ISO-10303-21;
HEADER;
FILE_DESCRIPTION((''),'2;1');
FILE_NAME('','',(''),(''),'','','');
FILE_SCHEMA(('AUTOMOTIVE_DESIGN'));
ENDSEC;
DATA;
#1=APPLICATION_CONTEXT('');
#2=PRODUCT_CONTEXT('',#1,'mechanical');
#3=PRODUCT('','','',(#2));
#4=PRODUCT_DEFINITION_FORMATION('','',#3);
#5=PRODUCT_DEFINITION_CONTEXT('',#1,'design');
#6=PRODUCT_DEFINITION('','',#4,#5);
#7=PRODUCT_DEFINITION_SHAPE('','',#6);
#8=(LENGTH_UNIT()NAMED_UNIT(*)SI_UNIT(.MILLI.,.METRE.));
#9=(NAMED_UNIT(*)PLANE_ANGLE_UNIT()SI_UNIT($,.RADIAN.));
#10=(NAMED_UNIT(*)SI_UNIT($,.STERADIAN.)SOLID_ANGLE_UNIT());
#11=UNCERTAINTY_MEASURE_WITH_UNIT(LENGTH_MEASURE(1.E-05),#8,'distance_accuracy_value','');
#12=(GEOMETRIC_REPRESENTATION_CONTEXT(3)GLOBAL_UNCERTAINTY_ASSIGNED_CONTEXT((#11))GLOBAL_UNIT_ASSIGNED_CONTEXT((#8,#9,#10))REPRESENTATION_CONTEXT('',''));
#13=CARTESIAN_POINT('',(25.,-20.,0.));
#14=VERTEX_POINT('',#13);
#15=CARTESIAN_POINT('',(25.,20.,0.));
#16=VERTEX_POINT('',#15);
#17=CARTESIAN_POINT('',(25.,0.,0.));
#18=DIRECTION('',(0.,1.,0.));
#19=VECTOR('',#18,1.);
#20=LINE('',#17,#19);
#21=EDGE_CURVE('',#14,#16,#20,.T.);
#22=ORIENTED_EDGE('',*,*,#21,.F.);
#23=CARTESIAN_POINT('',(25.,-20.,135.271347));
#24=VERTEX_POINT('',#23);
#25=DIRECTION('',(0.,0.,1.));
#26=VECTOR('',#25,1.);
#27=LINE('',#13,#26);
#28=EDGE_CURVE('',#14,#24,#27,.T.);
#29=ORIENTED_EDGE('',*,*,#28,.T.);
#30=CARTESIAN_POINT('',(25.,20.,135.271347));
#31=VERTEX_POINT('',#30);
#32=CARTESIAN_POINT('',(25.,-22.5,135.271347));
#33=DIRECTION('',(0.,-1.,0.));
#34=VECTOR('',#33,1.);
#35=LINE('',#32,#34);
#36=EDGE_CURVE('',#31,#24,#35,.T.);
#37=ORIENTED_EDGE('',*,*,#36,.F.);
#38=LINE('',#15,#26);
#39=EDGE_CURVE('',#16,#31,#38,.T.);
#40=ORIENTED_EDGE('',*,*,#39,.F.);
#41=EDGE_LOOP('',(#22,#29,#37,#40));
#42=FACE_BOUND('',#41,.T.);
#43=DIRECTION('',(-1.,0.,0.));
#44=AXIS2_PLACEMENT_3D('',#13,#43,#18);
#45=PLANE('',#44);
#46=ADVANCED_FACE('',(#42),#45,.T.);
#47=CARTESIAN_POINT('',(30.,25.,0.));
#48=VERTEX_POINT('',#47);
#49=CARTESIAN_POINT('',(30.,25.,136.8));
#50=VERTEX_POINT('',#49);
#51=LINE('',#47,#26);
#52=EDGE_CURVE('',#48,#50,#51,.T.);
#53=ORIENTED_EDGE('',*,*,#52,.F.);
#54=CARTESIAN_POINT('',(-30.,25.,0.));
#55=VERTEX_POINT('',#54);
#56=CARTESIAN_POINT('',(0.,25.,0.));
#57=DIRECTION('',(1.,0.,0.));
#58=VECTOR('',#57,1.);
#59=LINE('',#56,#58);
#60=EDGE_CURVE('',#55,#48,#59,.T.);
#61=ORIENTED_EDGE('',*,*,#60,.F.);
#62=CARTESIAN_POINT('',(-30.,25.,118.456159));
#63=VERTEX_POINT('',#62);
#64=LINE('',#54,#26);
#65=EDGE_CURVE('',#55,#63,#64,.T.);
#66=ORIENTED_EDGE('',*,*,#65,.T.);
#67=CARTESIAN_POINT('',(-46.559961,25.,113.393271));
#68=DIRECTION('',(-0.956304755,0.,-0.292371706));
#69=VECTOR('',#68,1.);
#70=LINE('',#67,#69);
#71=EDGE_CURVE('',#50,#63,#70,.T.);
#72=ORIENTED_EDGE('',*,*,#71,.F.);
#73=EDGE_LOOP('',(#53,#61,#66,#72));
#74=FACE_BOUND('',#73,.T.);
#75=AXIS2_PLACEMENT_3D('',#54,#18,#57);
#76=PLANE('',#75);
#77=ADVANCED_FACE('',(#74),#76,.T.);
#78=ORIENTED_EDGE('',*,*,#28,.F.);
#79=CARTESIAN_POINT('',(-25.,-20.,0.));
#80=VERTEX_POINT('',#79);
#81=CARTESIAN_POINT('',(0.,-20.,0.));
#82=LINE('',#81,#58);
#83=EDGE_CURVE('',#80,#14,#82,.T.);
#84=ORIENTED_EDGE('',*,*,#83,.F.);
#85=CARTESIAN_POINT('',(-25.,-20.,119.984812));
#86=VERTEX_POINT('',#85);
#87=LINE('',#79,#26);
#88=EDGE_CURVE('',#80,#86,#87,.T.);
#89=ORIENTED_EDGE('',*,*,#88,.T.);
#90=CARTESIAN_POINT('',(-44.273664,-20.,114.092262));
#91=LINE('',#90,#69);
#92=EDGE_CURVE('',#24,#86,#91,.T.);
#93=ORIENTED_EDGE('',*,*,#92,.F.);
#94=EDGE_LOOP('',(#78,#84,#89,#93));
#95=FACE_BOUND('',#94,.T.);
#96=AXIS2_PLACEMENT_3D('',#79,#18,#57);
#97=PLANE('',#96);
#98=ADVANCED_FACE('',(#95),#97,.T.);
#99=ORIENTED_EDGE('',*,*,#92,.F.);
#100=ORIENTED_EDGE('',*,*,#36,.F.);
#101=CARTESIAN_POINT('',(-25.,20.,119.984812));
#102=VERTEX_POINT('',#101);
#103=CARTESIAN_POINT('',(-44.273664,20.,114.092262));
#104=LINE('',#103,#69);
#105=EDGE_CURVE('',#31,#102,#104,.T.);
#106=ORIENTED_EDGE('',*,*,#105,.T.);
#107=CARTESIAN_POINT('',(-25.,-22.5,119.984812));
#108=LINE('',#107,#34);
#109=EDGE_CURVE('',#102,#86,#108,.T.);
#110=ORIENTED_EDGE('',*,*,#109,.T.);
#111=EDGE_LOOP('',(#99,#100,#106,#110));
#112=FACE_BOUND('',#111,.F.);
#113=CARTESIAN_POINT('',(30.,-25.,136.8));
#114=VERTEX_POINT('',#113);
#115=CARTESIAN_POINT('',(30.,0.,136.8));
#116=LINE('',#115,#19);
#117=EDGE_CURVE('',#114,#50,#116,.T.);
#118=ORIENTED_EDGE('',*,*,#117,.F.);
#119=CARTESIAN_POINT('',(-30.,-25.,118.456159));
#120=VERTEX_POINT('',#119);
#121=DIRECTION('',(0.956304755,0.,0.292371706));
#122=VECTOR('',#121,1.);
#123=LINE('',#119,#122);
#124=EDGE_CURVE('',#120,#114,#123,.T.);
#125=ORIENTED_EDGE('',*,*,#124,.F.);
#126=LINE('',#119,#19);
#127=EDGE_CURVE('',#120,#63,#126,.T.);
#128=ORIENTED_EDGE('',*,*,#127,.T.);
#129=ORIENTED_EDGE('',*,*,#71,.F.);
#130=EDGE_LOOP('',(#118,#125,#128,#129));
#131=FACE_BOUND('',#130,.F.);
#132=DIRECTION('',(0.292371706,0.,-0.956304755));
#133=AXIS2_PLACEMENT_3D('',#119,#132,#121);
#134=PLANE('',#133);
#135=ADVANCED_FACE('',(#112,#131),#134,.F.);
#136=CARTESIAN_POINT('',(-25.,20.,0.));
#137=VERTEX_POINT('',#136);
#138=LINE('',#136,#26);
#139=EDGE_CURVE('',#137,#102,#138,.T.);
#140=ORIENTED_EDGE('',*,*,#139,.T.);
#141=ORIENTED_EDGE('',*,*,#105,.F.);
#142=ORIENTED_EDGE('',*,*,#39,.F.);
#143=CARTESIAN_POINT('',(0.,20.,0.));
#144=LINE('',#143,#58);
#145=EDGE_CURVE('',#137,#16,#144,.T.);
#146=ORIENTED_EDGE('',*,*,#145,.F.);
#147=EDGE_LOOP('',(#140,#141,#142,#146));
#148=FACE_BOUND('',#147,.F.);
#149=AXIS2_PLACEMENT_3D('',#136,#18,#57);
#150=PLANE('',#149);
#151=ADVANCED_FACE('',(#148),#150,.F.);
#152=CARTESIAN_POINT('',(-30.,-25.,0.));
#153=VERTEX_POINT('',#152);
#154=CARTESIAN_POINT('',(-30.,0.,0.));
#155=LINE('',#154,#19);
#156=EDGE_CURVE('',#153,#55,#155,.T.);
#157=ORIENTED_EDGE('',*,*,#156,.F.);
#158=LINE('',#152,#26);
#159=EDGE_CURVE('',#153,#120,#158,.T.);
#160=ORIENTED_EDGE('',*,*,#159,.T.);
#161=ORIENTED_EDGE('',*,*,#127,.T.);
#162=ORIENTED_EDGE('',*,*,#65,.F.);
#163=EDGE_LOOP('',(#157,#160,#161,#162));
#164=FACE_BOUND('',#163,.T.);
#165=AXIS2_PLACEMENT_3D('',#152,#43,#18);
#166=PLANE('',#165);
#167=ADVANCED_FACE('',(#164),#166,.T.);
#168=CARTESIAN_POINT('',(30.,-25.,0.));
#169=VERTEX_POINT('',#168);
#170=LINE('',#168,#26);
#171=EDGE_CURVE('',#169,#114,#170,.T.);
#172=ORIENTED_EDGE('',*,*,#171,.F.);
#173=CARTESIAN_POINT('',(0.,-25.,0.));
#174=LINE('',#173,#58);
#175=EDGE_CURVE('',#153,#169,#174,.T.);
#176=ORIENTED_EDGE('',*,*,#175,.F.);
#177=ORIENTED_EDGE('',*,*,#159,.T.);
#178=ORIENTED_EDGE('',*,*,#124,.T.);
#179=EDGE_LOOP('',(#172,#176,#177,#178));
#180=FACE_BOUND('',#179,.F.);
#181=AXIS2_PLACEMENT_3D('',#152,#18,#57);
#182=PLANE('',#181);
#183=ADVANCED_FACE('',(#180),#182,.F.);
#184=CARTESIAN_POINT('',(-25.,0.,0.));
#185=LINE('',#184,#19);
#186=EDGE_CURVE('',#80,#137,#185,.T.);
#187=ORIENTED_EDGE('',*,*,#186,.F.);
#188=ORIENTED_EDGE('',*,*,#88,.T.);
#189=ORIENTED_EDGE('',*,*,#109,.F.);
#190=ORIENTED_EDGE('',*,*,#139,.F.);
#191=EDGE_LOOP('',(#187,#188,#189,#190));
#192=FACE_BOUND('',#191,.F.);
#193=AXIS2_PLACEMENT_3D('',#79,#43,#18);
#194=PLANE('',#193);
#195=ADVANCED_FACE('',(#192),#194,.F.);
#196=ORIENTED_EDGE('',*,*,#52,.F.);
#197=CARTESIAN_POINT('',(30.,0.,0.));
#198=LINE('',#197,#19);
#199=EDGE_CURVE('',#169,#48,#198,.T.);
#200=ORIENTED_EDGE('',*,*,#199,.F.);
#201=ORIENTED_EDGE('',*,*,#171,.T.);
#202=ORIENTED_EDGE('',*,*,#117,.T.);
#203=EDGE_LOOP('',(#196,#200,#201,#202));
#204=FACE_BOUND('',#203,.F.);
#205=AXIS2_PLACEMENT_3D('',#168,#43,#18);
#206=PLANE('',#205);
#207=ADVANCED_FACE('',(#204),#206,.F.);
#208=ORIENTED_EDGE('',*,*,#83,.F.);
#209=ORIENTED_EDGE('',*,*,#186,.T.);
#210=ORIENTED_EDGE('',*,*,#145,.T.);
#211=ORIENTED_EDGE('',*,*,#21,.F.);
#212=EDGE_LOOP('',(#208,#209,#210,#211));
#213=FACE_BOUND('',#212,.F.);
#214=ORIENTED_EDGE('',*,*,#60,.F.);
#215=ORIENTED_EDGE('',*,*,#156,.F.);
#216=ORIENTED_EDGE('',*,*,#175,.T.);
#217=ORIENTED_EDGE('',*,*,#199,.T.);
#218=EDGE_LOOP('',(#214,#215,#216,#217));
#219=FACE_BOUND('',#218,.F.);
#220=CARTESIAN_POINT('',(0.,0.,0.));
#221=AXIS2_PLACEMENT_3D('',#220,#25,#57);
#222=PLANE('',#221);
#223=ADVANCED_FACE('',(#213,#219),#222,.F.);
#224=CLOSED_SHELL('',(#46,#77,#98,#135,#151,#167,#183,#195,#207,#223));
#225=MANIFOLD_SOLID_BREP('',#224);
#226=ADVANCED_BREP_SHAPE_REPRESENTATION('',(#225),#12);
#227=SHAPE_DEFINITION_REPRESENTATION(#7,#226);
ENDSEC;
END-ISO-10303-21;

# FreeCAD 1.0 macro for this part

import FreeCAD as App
import Part
import Sketcher

V = App.Vector
Q = App.Units.Quantity


def add_polygon(sketch, points):
    """Adds a closed chain of lines whose ends are joined by coincident constraints."""
    first, n = sketch.GeometryCount, len(points)
    for a, b in zip(points, points[1:] + points[:1]):
        sketch.addGeometry(Part.LineSegment(App.Vector(*a, 0), App.Vector(*b, 0)), False)
    for i in range(n):
        sketch.addConstraint(Sketcher.Constraint("Coincident", first + i, 2, first + (i + 1) % n, 1))

doc = App.newDocument("Part")
body = doc.addObject("PartDesign::Body", "Body")

# Sketch on XY plane
sketch1 = body.newObject("Sketcher::SketchObject", "Sketch")
sketch1.AttachmentSupport = (doc.getObject("XY_Plane"), [""])
sketch1.MapMode = "FlatFace"
add_polygon(sketch1, [(-30, 25), (-30, -25), (30, -25), (30, 25)])  # lines 0-3
add_polygon(sketch1, [(25, -20), (-25, -20), (-25, 20), (25, 20)])  # lines 4-7
sketch1.addConstraint(Sketcher.Constraint("Vertical", 0))
sketch1.addConstraint(Sketcher.Constraint("Horizontal", 1))
sketch1.addConstraint(Sketcher.Constraint("Vertical", 2))
sketch1.addConstraint(Sketcher.Constraint("Horizontal", 3))
sketch1.addConstraint(Sketcher.Constraint("Horizontal", 4))
sketch1.addConstraint(Sketcher.Constraint("Vertical", 5))
sketch1.addConstraint(Sketcher.Constraint("Horizontal", 6))
sketch1.addConstraint(Sketcher.Constraint("Vertical", 7))
sketch1.addConstraint(Sketcher.Constraint("Symmetric", 0, 2, 2, 2, -1, 1))
sketch1.addConstraint(Sketcher.Constraint("Symmetric", 4, 2, 6, 2, -1, 1))
sketch1.addConstraint(Sketcher.Constraint("Equal", 6, 0))
sketch1.addConstraint(Sketcher.Constraint("DistanceX", 1, 1, 1, 2, Q("60 mm")))
sketch1.addConstraint(Sketcher.Constraint("DistanceX", 4, 2, 4, 1, Q("50 mm")))
sketch1.addConstraint(Sketcher.Constraint("DistanceY", 5, 1, 5, 2, Q("40 mm")))
pad1 = body.newObject("PartDesign::Pad", "Pad")
pad1.Profile = sketch1
pad1.Length = 136.8

# Sketch on XZ plane
sketch2 = body.newObject("Sketcher::SketchObject", "Sketch001")
sketch2.AttachmentSupport = (doc.getObject("XZ_Plane"), [""])
sketch2.MapMode = "FlatFace"
sketch2.AttachmentOffset = App.Placement(V(0, 0, 25), App.Rotation())
add_polygon(sketch2, [(30, 136.8), (-30, 136.8), (-30, 118.456159)])  # lines 0-2
sketch2.addConstraint(Sketcher.Constraint("Horizontal", 0))
sketch2.addConstraint(Sketcher.Constraint("Vertical", 1))
sketch2.addConstraint(Sketcher.Constraint("DistanceX", 0, 2, 0, 1, Q("60 mm")))
sketch2.addConstraint(Sketcher.Constraint("Angle", 2, Q("17 deg")))
sketch2.addConstraint(Sketcher.Constraint("DistanceX", 0, 2, -1, 1, Q("30 mm")))
sketch2.addConstraint(Sketcher.Constraint("DistanceY", -1, 1, 0, 2, Q("136.8 mm")))
pocket1 = body.newObject("PartDesign::Pocket", "Pocket")
pocket1.Profile = sketch2
pocket1.Length = 60

doc.recompute()
